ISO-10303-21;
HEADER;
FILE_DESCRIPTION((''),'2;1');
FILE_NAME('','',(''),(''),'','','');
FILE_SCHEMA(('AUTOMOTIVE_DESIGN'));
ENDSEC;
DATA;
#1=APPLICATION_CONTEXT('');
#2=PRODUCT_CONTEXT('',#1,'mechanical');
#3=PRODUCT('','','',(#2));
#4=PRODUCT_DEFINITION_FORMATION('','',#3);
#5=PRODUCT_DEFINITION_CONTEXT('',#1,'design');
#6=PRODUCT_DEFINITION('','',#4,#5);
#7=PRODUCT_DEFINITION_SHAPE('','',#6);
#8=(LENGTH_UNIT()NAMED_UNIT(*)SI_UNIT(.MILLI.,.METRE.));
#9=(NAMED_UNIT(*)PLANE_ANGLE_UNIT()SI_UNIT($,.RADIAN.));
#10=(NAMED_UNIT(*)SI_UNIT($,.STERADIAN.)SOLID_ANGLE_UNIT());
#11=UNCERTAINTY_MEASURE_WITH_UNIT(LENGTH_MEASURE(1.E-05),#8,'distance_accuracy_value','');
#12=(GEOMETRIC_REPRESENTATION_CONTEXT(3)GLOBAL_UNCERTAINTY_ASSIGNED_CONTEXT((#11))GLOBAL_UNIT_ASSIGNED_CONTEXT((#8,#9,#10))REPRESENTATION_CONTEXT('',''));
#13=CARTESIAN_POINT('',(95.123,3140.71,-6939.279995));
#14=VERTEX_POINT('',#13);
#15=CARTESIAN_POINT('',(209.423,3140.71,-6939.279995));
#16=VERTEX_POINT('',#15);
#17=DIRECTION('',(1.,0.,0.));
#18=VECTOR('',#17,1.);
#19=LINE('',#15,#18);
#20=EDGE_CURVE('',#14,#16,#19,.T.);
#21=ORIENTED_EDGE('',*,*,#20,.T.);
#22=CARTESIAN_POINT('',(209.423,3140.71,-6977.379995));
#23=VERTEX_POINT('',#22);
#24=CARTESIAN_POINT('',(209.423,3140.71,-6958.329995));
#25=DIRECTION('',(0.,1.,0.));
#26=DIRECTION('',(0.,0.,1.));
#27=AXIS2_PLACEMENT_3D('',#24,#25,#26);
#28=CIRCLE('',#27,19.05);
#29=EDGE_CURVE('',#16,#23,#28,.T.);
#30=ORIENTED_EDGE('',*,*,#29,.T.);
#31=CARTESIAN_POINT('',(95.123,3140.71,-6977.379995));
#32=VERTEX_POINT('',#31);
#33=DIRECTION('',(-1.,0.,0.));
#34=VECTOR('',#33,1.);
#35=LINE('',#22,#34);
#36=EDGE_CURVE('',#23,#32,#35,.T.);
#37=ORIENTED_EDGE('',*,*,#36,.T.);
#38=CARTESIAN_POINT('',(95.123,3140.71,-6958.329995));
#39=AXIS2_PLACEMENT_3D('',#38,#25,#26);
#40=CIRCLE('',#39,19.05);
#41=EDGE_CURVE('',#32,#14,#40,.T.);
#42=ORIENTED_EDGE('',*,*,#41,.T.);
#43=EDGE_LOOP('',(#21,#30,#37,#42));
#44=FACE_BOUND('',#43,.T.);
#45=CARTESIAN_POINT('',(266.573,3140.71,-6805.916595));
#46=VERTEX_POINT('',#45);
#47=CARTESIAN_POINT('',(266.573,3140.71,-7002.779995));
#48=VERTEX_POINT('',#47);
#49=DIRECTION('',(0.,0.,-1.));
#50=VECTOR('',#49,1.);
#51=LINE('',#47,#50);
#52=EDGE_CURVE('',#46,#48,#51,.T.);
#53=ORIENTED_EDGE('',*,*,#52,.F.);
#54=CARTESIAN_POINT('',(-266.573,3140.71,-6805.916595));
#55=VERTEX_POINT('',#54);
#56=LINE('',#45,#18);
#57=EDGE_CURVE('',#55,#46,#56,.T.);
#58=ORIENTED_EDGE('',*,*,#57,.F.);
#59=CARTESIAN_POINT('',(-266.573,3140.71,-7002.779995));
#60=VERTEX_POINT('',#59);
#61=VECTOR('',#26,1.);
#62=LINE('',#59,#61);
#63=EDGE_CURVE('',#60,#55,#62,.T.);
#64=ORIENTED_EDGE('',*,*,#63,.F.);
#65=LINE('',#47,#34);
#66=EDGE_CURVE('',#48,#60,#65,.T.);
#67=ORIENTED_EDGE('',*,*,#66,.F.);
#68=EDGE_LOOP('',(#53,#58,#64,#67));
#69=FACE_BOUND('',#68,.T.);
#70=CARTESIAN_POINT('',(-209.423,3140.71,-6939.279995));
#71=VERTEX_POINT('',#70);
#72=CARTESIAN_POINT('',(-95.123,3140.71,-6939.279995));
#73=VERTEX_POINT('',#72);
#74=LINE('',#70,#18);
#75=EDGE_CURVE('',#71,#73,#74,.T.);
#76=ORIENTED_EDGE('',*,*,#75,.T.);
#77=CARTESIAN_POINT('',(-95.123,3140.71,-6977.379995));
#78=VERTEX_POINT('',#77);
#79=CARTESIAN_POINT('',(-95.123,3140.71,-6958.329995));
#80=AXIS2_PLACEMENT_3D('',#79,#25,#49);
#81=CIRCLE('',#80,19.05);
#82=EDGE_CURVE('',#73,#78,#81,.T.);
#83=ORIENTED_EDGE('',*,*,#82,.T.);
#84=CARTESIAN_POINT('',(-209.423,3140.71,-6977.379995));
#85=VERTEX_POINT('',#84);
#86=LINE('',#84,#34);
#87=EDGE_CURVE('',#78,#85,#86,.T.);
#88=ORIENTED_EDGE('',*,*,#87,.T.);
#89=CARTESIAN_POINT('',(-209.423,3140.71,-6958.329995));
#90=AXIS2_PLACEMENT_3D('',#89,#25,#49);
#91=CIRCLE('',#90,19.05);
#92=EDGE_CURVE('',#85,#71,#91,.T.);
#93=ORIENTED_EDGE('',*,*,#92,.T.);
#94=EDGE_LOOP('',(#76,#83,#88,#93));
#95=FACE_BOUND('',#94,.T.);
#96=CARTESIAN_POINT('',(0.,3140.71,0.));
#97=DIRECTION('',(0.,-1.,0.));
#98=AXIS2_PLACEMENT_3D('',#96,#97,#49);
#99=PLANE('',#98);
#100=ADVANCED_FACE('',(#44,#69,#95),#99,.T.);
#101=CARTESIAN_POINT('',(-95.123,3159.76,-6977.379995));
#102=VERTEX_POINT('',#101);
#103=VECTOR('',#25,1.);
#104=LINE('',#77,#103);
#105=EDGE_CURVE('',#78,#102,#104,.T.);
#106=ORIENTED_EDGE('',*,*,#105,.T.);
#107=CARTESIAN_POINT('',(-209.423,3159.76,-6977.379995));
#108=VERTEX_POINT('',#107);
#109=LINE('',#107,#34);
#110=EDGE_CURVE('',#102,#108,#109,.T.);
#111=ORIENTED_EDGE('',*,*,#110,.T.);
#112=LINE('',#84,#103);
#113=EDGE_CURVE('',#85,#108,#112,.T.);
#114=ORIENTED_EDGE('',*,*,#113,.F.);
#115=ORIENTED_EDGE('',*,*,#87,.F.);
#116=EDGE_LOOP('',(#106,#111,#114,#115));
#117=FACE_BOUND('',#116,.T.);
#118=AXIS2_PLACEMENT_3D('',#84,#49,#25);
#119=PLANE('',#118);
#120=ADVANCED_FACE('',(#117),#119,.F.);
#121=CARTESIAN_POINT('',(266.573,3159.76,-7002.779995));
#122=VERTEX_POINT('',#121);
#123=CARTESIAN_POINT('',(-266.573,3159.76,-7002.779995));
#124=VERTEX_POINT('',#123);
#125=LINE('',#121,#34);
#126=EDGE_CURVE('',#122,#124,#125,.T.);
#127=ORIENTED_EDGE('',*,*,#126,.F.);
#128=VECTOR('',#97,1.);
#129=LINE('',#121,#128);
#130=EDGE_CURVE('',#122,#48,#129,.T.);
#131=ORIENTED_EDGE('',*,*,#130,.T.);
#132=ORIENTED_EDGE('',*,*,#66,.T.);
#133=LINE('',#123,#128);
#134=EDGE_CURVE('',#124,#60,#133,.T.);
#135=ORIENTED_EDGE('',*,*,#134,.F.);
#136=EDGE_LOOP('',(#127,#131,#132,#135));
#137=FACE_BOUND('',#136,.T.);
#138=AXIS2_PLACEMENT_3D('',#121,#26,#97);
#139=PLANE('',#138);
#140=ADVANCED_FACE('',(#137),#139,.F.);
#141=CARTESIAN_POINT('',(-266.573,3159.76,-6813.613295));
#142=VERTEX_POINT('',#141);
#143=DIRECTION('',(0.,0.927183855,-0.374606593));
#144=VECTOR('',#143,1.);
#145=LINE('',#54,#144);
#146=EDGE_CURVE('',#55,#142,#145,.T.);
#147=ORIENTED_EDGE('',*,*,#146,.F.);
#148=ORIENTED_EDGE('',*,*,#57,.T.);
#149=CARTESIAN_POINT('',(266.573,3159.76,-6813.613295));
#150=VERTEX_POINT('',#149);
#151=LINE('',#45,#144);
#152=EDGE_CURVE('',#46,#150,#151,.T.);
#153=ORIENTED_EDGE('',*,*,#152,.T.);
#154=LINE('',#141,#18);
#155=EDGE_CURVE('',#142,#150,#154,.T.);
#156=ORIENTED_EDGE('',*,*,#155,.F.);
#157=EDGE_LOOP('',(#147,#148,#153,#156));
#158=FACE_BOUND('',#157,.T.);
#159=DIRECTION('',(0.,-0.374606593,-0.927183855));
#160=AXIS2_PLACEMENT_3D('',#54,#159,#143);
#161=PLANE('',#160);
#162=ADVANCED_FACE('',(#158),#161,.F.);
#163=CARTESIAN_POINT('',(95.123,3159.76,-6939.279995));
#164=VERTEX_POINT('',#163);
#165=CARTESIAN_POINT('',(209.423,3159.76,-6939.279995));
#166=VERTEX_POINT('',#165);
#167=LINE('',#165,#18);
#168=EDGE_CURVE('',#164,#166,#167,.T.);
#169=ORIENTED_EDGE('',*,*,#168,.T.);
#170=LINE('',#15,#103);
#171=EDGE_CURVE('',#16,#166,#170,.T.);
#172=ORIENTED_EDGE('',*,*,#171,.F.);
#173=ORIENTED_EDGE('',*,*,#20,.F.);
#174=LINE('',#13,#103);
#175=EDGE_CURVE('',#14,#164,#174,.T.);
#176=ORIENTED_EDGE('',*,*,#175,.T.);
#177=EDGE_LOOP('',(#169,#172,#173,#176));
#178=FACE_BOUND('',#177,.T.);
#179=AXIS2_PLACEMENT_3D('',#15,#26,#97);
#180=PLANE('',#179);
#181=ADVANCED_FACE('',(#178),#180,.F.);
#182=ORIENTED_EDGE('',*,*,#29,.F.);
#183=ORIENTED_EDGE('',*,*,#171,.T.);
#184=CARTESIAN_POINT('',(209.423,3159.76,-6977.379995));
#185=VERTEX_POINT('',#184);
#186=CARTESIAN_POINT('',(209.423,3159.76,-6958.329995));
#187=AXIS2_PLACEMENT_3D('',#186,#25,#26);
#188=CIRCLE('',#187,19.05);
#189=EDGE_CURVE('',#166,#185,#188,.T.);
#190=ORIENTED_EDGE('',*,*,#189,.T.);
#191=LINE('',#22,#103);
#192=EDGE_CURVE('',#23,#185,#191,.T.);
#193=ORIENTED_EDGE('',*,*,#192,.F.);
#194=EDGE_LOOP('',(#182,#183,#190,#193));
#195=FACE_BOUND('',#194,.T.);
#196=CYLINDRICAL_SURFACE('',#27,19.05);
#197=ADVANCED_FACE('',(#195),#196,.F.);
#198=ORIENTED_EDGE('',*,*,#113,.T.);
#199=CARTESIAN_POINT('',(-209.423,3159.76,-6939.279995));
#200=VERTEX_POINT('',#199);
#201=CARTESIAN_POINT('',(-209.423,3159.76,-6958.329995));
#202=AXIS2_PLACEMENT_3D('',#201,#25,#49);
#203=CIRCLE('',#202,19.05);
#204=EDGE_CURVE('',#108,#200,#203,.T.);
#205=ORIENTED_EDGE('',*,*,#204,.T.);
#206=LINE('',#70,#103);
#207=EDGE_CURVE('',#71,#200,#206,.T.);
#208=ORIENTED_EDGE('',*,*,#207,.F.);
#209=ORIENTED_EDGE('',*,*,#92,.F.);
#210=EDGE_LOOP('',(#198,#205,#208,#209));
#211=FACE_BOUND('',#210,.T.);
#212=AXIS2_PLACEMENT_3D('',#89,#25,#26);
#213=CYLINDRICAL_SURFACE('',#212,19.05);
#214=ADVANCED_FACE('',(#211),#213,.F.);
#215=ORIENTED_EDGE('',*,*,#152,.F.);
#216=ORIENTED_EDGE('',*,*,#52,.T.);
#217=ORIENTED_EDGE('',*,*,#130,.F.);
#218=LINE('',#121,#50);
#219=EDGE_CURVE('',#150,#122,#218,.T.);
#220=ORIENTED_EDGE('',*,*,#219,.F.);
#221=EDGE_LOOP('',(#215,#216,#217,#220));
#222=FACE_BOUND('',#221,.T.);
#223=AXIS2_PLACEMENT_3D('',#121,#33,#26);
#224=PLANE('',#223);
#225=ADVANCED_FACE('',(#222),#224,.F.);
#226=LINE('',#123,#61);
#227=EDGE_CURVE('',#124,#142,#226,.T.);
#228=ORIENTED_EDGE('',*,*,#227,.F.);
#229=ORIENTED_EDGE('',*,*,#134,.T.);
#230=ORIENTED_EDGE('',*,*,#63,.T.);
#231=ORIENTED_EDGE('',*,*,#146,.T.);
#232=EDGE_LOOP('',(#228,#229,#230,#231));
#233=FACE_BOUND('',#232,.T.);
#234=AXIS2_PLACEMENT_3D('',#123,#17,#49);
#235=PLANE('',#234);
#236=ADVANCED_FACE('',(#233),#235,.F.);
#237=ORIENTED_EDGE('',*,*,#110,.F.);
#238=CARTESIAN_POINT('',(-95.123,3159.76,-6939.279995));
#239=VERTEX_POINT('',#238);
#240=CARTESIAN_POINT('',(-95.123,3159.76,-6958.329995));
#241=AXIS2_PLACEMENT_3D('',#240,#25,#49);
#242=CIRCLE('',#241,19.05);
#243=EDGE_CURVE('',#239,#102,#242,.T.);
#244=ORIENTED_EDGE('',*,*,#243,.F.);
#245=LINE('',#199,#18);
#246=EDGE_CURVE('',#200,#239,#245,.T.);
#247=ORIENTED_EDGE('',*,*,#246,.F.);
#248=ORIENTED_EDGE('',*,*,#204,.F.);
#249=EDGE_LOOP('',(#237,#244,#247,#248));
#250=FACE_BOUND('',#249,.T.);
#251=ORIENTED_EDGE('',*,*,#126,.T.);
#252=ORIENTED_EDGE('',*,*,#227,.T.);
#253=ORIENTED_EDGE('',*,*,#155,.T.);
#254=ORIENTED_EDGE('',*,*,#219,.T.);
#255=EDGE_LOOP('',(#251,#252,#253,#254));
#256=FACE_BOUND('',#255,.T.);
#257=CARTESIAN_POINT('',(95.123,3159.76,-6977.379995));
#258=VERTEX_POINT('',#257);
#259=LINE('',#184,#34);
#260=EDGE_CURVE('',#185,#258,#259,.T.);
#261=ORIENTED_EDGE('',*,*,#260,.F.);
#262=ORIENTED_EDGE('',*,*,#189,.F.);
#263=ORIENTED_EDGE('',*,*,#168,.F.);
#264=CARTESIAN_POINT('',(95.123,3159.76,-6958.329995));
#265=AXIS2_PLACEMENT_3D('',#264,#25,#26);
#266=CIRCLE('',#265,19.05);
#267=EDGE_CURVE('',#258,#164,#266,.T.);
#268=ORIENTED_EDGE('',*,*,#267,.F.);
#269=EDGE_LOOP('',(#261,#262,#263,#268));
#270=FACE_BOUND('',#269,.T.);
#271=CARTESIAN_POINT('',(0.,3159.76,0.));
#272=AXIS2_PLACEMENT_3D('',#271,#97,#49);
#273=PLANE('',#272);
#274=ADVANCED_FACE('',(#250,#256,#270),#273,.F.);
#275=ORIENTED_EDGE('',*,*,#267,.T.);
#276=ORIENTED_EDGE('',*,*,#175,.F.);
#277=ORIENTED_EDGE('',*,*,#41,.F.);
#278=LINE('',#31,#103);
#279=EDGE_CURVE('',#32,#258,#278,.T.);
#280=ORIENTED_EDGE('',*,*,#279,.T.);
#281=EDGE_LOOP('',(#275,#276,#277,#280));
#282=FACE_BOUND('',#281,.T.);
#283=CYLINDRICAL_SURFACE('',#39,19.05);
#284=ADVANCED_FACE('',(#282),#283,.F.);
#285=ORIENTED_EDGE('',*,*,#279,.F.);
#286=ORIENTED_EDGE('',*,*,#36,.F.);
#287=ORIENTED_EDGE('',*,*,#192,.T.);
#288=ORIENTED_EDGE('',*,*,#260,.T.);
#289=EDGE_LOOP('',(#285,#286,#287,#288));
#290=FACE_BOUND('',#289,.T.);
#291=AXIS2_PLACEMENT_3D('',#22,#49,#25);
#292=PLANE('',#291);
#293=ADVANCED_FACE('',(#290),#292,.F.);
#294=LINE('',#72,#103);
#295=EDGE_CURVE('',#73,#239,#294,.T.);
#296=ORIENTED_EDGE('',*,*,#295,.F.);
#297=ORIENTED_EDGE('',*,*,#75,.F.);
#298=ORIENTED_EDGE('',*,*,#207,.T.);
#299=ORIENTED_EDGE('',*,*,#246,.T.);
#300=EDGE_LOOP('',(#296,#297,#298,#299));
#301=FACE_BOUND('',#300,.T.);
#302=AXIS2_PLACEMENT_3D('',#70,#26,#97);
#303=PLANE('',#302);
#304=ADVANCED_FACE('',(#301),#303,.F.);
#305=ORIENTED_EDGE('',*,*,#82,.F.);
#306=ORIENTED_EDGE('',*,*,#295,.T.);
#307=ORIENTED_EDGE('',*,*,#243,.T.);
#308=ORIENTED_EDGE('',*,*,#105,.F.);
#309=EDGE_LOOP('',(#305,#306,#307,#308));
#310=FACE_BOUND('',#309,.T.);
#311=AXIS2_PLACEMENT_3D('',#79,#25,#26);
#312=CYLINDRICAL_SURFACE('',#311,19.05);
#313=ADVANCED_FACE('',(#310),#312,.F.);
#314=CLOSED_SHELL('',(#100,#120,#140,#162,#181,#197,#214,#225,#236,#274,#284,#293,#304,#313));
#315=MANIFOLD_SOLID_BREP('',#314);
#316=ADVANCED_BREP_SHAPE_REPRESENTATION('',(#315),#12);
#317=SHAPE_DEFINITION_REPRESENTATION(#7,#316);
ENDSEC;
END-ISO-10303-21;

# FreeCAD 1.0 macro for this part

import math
import FreeCAD as App
import Part
import Sketcher

V = App.Vector
Q = App.Units.Quantity

doc = App.newDocument("Part")
body = doc.addObject("PartDesign::Body", "Body")

# Sketch on XZ plane
sketch1 = body.newObject("Sketcher::SketchObject", "Sketch")
sketch1.AttachmentSupport = (doc.getObject("XZ_Plane"), [""])
sketch1.MapMode = "FlatFace"
sketch1.AttachmentOffset = App.Placement(V(0, 0, -123.65 * 25.4), App.Rotation())
sketch1.addGeometry(Part.LineSegment(V(-266.573, -7002.779995, 0), V(-266.573, -6805.916595, 0)), False)
sketch1.addGeometry(Part.LineSegment(V(-266.573, -6805.916595, 0), V(266.573, -6805.916595, 0)), False)
sketch1.addGeometry(Part.LineSegment(V(266.573, -6805.916595, 0), V(266.573, -7002.779995, 0)), False)
sketch1.addGeometry(Part.LineSegment(V(266.573, -7002.779995, 0), V(-266.573, -7002.779995, 0)), False)
sketch1.addConstraint(Sketcher.Constraint("Coincident", 0, 2, 1, 1))
sketch1.addConstraint(Sketcher.Constraint("Coincident", 1, 2, 2, 1))
sketch1.addConstraint(Sketcher.Constraint("Coincident", 2, 2, 3, 1))
sketch1.addConstraint(Sketcher.Constraint("Coincident", 3, 2, 0, 1))
sketch1.addConstraint(Sketcher.Constraint("Vertical", 0))
sketch1.addConstraint(Sketcher.Constraint("Horizontal", 1))
sketch1.addConstraint(Sketcher.Constraint("Vertical", 2))
sketch1.addConstraint(Sketcher.Constraint("Horizontal", 3))
sketch1.addConstraint(Sketcher.Constraint("DistanceX", 1, 1, 1, 2, Q("20.99 in")))
sketch1.addConstraint(Sketcher.Constraint("DistanceY", 2, 2, -1, 1, Q("275.6999998 in")))
sketch1.addConstraint(Sketcher.Constraint("DistanceX", 0, 2, -1, 1, Q("10.495 in")))
sketch1.addConstraint(Sketcher.Constraint("DistanceY", 0, 1, 0, 2, 196.8634))
pad1 = body.newObject("PartDesign::Pad", "Pad")
pad1.Profile = sketch1
pad1.Length = Q("0.75 in")
pad1.Reversed = True

# Sketch on YZ plane
sketch2 = body.newObject("Sketcher::SketchObject", "Sketch001")
sketch2.AttachmentSupport = (doc.getObject("YZ_Plane"), [""])
sketch2.MapMode = "FlatFace"
sketch2.AttachmentOffset = App.Placement(V(0, 0, 10.495 * 25.4), App.Rotation())
sketch2.addGeometry(Part.LineSegment(V(3140.71, -6805.916595, 0), V(3159.76, -6813.613295, 0)), False)
sketch2.addGeometry(Part.LineSegment(V(3159.76, -6813.613295, 0), V(3159.76, -6805.916595, 0)), False)
sketch2.addGeometry(Part.LineSegment(V(3159.76, -6805.916595, 0), V(3140.71, -6805.916595, 0)), False)
sketch2.addConstraint(Sketcher.Constraint("Coincident", 0, 2, 1, 1))
sketch2.addConstraint(Sketcher.Constraint("Coincident", 1, 2, 2, 1))
sketch2.addConstraint(Sketcher.Constraint("Coincident", 2, 2, 0, 1))
sketch2.addConstraint(Sketcher.Constraint("Vertical", 1))
sketch2.addConstraint(Sketcher.Constraint("Horizontal", 2))
sketch2.addConstraint(Sketcher.Constraint("Angle", 0, Q("-22 deg")))
sketch2.addConstraint(Sketcher.Constraint("DistanceX", 2, 2, 2, 1, Q("0.75 in")))
sketch2.addConstraint(Sketcher.Constraint("DistanceX", -1, 1, 0, 2, Q("124.4 in")))
sketch2.addConstraint(Sketcher.Constraint("DistanceY", 0, 2, -1, 1, 6813.613295))
pocket1 = body.newObject("PartDesign::Pocket", "Pocket")
pocket1.Profile = sketch2
pocket1.Type = "ThroughAll"

# Sketch on XZ plane
sketch3 = body.newObject("Sketcher::SketchObject", "Sketch002")
sketch3.AttachmentSupport = (doc.getObject("XZ_Plane"), [""])
sketch3.MapMode = "FlatFace"
sketch3.AttachmentOffset = App.Placement(V(0, 0, -124.4 * 25.4), App.Rotation())
sketch3.addGeometry(Part.LineSegment(V(95.123, -6939.279995, 0), V(209.423, -6939.279995, 0)), False)
sketch3.addGeometry(Part.ArcOfCircle(Part.Circle(V(209.423, -6958.329995, 0), V(0, 0, 1), 19.05), math.radians(-90), math.radians(90)), False)
sketch3.addGeometry(Part.LineSegment(V(209.423, -6977.379995, 0), V(95.123, -6977.379995, 0)), False)
sketch3.addGeometry(Part.ArcOfCircle(Part.Circle(V(95.123, -6958.329995, 0), V(0, 0, 1), 19.05), math.radians(90), math.radians(270)), False)
sketch3.addGeometry(Part.LineSegment(V(-209.423, -6939.279995, 0), V(-95.123, -6939.279995, 0)), False)
sketch3.addGeometry(Part.ArcOfCircle(Part.Circle(V(-95.123, -6958.329995, 0), V(0, 0, 1), 19.05), math.radians(-90), math.radians(90)), False)
sketch3.addGeometry(Part.LineSegment(V(-95.123, -6977.379995, 0), V(-209.423, -6977.379995, 0)), False)
sketch3.addGeometry(Part.ArcOfCircle(Part.Circle(V(-209.423, -6958.329995, 0), V(0, 0, 1), 19.05), math.radians(90), math.radians(270)), False)
sketch3.addConstraint(Sketcher.Constraint("Tangent", 0, 2, 1, 2))
sketch3.addConstraint(Sketcher.Constraint("Tangent", 1, 1, 2, 1))
sketch3.addConstraint(Sketcher.Constraint("Tangent", 2, 2, 3, 2))
sketch3.addConstraint(Sketcher.Constraint("Tangent", 3, 1, 0, 1))
sketch3.addConstraint(Sketcher.Constraint("Tangent", 4, 2, 5, 2))
sketch3.addConstraint(Sketcher.Constraint("Tangent", 5, 1, 6, 1))
sketch3.addConstraint(Sketcher.Constraint("Tangent", 6, 2, 7, 2))
sketch3.addConstraint(Sketcher.Constraint("Tangent", 7, 1, 4, 1))
sketch3.addConstraint(Sketcher.Constraint("Horizontal", 0))
sketch3.addConstraint(Sketcher.Constraint("Horizontal", 2))
sketch3.addConstraint(Sketcher.Constraint("Horizontal", 4))
sketch3.addConstraint(Sketcher.Constraint("Horizontal", 6))
sketch3.addConstraint(Sketcher.Constraint("Equal", 3, 5))
sketch3.addConstraint(Sketcher.Constraint("Symmetric", 3, 3, 5, 3, -2))
sketch3.addConstraint(Sketcher.Constraint("Equal", 2, 4))
sketch3.addConstraint(Sketcher.Constraint("Radius", 1, Q("0.75 in")))
sketch3.addConstraint(Sketcher.Constraint("DistanceX", 0, 1, 0, 2, Q("4.5 in")))
sketch3.addConstraint(Sketcher.Constraint("DistanceY", 0, 2, -1, 1, Q("273.1999998 in")))
sketch3.addConstraint(Sketcher.Constraint("DistanceX", 5, 3, 3, 3, Q("7.49 in")))
pocket2 = body.newObject("PartDesign::Pocket", "Pocket001")
pocket2.Profile = sketch3
pocket2.Type = "ThroughAll"
pocket2.Reversed = True

doc.recompute()
